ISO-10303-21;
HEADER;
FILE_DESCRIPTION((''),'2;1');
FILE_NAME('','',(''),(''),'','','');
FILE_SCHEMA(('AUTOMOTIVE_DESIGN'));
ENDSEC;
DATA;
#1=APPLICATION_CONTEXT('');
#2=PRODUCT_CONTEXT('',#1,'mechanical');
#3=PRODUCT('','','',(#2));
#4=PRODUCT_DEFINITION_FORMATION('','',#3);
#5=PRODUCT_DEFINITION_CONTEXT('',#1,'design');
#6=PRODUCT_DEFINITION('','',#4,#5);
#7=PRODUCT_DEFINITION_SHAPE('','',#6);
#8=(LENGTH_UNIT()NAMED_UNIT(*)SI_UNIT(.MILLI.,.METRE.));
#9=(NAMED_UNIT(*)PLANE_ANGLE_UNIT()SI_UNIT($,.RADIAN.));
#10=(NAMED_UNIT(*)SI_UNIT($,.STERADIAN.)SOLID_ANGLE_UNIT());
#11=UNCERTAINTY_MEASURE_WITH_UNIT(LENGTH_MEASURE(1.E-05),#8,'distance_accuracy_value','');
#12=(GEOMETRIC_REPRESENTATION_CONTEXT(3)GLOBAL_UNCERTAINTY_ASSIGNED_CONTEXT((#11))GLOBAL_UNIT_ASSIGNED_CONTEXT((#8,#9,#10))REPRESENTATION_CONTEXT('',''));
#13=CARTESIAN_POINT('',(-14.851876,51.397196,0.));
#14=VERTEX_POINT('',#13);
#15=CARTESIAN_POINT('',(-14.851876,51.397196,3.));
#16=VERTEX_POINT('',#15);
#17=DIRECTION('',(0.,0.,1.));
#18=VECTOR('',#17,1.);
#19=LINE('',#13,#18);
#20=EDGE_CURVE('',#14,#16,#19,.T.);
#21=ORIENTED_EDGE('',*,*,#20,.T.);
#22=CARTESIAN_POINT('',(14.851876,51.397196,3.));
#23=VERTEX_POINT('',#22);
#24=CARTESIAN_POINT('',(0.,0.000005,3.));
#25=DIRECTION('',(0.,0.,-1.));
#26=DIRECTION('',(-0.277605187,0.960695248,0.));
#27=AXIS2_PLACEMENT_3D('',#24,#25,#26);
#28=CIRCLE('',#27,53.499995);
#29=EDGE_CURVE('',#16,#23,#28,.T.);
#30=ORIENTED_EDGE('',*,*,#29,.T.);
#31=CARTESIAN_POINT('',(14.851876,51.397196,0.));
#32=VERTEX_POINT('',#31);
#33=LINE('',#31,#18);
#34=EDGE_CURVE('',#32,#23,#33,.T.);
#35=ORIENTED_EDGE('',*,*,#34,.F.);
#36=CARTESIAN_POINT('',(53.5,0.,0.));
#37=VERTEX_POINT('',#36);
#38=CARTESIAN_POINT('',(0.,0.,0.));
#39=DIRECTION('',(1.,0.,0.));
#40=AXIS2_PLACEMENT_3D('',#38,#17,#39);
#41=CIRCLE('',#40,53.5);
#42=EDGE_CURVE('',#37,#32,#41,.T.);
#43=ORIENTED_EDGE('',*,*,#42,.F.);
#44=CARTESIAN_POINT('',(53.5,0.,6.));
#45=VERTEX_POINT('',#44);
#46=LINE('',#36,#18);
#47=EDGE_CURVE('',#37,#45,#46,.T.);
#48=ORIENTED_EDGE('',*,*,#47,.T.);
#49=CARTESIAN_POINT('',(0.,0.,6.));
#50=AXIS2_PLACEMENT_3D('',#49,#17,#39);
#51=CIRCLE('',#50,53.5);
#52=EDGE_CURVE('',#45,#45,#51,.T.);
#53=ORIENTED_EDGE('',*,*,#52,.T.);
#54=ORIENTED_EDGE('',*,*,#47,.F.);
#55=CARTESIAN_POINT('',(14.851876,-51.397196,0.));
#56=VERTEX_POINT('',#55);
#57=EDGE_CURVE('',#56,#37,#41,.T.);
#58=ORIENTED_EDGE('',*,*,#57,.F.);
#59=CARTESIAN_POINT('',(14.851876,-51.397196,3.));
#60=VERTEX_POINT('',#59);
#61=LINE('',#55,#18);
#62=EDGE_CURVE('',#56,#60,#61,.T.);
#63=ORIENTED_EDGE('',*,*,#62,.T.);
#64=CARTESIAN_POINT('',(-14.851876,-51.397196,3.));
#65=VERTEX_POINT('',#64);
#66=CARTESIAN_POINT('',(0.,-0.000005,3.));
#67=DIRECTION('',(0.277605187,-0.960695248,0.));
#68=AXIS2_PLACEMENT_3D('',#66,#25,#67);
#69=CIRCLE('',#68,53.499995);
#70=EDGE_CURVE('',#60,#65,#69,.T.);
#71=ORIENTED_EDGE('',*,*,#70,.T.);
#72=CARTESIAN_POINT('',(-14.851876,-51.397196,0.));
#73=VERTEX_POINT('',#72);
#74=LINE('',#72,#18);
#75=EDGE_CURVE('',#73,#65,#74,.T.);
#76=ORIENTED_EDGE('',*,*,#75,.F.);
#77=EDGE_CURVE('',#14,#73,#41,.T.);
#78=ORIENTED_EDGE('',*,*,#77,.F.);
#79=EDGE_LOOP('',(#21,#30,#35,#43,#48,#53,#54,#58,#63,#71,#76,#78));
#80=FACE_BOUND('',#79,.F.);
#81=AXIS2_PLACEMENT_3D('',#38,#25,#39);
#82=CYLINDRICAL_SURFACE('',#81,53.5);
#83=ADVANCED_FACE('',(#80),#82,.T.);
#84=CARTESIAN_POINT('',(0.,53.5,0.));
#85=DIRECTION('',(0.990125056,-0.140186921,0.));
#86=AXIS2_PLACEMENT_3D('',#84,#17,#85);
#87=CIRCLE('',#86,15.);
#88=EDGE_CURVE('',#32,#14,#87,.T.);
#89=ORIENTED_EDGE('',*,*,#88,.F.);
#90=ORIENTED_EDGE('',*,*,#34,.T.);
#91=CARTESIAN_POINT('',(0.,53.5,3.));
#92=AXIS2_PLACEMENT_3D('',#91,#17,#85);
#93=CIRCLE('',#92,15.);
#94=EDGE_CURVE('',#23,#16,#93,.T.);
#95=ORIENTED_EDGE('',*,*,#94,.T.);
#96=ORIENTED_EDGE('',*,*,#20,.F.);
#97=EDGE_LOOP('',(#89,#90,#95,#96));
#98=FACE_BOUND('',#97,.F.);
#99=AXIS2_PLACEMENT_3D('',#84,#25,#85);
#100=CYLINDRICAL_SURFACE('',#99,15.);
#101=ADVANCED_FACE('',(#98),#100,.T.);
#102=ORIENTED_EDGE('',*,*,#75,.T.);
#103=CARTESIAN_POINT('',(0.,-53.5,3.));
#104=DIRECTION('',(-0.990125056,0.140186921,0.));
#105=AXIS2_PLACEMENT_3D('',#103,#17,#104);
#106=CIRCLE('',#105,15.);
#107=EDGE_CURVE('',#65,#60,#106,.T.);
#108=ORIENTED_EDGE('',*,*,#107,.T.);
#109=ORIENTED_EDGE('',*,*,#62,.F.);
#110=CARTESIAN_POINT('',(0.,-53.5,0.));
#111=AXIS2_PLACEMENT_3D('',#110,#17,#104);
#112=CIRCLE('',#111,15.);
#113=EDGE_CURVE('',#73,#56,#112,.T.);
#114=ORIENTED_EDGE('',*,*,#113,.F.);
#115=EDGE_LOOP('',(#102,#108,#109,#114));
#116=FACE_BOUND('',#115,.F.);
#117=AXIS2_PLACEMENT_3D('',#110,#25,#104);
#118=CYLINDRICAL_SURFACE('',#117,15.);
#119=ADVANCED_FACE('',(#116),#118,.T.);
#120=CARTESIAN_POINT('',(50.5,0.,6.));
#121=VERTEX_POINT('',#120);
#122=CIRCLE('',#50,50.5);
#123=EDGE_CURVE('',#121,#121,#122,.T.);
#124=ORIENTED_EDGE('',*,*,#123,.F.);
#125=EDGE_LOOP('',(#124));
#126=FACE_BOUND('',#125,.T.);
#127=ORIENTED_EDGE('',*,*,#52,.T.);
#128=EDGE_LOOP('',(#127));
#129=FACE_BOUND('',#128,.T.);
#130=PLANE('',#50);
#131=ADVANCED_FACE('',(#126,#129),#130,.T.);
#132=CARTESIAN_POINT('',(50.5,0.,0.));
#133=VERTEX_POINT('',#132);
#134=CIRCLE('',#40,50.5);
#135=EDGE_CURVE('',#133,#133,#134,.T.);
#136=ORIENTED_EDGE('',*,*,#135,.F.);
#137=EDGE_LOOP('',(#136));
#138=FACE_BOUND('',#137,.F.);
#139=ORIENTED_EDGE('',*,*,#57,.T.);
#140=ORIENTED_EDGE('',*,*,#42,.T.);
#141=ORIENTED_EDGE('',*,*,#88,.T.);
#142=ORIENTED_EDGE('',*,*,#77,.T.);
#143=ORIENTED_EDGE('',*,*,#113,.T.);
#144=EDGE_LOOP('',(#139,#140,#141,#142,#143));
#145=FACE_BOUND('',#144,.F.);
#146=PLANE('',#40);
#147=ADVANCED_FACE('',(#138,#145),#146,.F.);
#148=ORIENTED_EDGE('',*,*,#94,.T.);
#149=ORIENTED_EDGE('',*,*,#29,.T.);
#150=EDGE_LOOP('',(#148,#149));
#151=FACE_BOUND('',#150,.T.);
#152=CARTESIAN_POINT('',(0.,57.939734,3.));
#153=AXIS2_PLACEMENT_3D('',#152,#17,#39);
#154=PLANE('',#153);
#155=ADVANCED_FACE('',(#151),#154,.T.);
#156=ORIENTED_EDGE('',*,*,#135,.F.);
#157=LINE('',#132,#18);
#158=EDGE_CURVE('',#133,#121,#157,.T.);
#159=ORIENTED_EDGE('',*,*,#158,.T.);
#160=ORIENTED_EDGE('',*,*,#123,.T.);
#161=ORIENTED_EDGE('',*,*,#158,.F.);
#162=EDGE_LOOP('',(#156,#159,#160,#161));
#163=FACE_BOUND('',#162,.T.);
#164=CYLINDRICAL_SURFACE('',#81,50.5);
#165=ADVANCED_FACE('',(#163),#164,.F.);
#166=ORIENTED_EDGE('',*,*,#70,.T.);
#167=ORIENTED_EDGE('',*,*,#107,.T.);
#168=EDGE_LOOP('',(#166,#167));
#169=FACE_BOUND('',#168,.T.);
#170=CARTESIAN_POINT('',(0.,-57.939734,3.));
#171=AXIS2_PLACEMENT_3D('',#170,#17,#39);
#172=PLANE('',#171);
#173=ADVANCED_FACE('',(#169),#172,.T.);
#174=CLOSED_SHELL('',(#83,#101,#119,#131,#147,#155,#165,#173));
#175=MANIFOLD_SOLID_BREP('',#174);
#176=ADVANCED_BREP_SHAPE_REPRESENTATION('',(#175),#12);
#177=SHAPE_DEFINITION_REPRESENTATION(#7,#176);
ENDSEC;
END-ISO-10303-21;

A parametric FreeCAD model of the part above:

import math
import FreeCAD as App
import Part
import Sketcher
from FreeCAD import Vector

doc = App.newDocument("Part")
body = doc.addObject("PartDesign::Body", "Body")

# Sketch on XY plane
sketch1 = body.newObject("Sketcher::SketchObject", "Sketch")
sketch1.AttachmentSupport = (doc.getObject("XY_Plane"), [""])
sketch1.MapMode = "FlatFace"
sketch1.addGeometry(Part.Circle(Vector(0, 0, 0), Vector(0, 0, 1), 54), False)
sketch1.addGeometry(Part.Circle(Vector(0, 0, 0), Vector(0, 0, 1), 50), False)
sketch1.addConstraint(Sketcher.Constraint("Coincident", 0, 3, -1, 1))
sketch1.addConstraint(Sketcher.Constraint("Coincident", 1, 3, -1, 1))
sketch1.addConstraint(Sketcher.Constraint("Diameter", 0, 107.0))
sketch1.addConstraint(Sketcher.Constraint("Diameter", 1, 101.0))
pad1 = body.newObject("PartDesign::Pad", "Pad")
pad1.Profile = sketch1
pad1.Length = 6

# Sketch on XY plane
sketch2 = body.newObject("Sketcher::SketchObject", "Sketch001")
sketch2.AttachmentSupport = (doc.getObject("XY_Plane"), [""])
sketch2.MapMode = "FlatFace"
sketch2.addGeometry(Part.ArcOfCircle(Part.Circle(Vector(0, 0, 0), Vector(0, 0, 1), 53), math.radians(-106), math.radians(-74)), False)
sketch2.addGeometry(Part.ArcOfCircle(Part.Circle(Vector(0, -53, 0), Vector(0, 0, 1), 15), math.radians(172), math.radians(368)), False)
sketch2.addGeometry(Part.ArcOfCircle(Part.Circle(Vector(0, 0, 0), Vector(0, 0, 1), 53), math.radians(74), math.radians(106)), False)
sketch2.addGeometry(Part.ArcOfCircle(Part.Circle(Vector(0, 53, 0), Vector(0, 0, 1), 15), math.radians(-8), math.radians(188)), False)
sketch2.addConstraint(Sketcher.Constraint("Coincident", 0, 1, 1, 1))
sketch2.addConstraint(Sketcher.Constraint("Coincident", 1, 2, 0, 2))
sketch2.addConstraint(Sketcher.Constraint("Coincident", 2, 1, 3, 1))
sketch2.addConstraint(Sketcher.Constraint("Coincident", 3, 2, 2, 2))
sketch2.addConstraint(Sketcher.Constraint("Coincident", 0, 3, -1, 1))
sketch2.addConstraint(Sketcher.Constraint("Coincident", 2, 3, -1, 1))
sketch2.addConstraint(Sketcher.Constraint("Equal", 0, 2))
sketch2.addConstraint(Sketcher.Constraint("Equal", 1, 3))
sketch2.addConstraint(Sketcher.Constraint("Symmetric", 1, 3, 3, 3, -1, 1))
sketch2.addConstraint(Sketcher.Constraint("PointOnObject", 1, 3, -2))
sketch2.addConstraint(Sketcher.Constraint("Radius", 1, 15.0))
sketch2.addConstraint(Sketcher.Constraint("DistanceY", 1, 3, 3, 3, 107.0))
sketch2.addConstraint(Sketcher.Constraint("Radius", 0, 53.499995))
pad2 = body.newObject("PartDesign::Pad", "Pad001")
pad2.Profile = sketch2
pad2.Length = 3

doc.recompute()
